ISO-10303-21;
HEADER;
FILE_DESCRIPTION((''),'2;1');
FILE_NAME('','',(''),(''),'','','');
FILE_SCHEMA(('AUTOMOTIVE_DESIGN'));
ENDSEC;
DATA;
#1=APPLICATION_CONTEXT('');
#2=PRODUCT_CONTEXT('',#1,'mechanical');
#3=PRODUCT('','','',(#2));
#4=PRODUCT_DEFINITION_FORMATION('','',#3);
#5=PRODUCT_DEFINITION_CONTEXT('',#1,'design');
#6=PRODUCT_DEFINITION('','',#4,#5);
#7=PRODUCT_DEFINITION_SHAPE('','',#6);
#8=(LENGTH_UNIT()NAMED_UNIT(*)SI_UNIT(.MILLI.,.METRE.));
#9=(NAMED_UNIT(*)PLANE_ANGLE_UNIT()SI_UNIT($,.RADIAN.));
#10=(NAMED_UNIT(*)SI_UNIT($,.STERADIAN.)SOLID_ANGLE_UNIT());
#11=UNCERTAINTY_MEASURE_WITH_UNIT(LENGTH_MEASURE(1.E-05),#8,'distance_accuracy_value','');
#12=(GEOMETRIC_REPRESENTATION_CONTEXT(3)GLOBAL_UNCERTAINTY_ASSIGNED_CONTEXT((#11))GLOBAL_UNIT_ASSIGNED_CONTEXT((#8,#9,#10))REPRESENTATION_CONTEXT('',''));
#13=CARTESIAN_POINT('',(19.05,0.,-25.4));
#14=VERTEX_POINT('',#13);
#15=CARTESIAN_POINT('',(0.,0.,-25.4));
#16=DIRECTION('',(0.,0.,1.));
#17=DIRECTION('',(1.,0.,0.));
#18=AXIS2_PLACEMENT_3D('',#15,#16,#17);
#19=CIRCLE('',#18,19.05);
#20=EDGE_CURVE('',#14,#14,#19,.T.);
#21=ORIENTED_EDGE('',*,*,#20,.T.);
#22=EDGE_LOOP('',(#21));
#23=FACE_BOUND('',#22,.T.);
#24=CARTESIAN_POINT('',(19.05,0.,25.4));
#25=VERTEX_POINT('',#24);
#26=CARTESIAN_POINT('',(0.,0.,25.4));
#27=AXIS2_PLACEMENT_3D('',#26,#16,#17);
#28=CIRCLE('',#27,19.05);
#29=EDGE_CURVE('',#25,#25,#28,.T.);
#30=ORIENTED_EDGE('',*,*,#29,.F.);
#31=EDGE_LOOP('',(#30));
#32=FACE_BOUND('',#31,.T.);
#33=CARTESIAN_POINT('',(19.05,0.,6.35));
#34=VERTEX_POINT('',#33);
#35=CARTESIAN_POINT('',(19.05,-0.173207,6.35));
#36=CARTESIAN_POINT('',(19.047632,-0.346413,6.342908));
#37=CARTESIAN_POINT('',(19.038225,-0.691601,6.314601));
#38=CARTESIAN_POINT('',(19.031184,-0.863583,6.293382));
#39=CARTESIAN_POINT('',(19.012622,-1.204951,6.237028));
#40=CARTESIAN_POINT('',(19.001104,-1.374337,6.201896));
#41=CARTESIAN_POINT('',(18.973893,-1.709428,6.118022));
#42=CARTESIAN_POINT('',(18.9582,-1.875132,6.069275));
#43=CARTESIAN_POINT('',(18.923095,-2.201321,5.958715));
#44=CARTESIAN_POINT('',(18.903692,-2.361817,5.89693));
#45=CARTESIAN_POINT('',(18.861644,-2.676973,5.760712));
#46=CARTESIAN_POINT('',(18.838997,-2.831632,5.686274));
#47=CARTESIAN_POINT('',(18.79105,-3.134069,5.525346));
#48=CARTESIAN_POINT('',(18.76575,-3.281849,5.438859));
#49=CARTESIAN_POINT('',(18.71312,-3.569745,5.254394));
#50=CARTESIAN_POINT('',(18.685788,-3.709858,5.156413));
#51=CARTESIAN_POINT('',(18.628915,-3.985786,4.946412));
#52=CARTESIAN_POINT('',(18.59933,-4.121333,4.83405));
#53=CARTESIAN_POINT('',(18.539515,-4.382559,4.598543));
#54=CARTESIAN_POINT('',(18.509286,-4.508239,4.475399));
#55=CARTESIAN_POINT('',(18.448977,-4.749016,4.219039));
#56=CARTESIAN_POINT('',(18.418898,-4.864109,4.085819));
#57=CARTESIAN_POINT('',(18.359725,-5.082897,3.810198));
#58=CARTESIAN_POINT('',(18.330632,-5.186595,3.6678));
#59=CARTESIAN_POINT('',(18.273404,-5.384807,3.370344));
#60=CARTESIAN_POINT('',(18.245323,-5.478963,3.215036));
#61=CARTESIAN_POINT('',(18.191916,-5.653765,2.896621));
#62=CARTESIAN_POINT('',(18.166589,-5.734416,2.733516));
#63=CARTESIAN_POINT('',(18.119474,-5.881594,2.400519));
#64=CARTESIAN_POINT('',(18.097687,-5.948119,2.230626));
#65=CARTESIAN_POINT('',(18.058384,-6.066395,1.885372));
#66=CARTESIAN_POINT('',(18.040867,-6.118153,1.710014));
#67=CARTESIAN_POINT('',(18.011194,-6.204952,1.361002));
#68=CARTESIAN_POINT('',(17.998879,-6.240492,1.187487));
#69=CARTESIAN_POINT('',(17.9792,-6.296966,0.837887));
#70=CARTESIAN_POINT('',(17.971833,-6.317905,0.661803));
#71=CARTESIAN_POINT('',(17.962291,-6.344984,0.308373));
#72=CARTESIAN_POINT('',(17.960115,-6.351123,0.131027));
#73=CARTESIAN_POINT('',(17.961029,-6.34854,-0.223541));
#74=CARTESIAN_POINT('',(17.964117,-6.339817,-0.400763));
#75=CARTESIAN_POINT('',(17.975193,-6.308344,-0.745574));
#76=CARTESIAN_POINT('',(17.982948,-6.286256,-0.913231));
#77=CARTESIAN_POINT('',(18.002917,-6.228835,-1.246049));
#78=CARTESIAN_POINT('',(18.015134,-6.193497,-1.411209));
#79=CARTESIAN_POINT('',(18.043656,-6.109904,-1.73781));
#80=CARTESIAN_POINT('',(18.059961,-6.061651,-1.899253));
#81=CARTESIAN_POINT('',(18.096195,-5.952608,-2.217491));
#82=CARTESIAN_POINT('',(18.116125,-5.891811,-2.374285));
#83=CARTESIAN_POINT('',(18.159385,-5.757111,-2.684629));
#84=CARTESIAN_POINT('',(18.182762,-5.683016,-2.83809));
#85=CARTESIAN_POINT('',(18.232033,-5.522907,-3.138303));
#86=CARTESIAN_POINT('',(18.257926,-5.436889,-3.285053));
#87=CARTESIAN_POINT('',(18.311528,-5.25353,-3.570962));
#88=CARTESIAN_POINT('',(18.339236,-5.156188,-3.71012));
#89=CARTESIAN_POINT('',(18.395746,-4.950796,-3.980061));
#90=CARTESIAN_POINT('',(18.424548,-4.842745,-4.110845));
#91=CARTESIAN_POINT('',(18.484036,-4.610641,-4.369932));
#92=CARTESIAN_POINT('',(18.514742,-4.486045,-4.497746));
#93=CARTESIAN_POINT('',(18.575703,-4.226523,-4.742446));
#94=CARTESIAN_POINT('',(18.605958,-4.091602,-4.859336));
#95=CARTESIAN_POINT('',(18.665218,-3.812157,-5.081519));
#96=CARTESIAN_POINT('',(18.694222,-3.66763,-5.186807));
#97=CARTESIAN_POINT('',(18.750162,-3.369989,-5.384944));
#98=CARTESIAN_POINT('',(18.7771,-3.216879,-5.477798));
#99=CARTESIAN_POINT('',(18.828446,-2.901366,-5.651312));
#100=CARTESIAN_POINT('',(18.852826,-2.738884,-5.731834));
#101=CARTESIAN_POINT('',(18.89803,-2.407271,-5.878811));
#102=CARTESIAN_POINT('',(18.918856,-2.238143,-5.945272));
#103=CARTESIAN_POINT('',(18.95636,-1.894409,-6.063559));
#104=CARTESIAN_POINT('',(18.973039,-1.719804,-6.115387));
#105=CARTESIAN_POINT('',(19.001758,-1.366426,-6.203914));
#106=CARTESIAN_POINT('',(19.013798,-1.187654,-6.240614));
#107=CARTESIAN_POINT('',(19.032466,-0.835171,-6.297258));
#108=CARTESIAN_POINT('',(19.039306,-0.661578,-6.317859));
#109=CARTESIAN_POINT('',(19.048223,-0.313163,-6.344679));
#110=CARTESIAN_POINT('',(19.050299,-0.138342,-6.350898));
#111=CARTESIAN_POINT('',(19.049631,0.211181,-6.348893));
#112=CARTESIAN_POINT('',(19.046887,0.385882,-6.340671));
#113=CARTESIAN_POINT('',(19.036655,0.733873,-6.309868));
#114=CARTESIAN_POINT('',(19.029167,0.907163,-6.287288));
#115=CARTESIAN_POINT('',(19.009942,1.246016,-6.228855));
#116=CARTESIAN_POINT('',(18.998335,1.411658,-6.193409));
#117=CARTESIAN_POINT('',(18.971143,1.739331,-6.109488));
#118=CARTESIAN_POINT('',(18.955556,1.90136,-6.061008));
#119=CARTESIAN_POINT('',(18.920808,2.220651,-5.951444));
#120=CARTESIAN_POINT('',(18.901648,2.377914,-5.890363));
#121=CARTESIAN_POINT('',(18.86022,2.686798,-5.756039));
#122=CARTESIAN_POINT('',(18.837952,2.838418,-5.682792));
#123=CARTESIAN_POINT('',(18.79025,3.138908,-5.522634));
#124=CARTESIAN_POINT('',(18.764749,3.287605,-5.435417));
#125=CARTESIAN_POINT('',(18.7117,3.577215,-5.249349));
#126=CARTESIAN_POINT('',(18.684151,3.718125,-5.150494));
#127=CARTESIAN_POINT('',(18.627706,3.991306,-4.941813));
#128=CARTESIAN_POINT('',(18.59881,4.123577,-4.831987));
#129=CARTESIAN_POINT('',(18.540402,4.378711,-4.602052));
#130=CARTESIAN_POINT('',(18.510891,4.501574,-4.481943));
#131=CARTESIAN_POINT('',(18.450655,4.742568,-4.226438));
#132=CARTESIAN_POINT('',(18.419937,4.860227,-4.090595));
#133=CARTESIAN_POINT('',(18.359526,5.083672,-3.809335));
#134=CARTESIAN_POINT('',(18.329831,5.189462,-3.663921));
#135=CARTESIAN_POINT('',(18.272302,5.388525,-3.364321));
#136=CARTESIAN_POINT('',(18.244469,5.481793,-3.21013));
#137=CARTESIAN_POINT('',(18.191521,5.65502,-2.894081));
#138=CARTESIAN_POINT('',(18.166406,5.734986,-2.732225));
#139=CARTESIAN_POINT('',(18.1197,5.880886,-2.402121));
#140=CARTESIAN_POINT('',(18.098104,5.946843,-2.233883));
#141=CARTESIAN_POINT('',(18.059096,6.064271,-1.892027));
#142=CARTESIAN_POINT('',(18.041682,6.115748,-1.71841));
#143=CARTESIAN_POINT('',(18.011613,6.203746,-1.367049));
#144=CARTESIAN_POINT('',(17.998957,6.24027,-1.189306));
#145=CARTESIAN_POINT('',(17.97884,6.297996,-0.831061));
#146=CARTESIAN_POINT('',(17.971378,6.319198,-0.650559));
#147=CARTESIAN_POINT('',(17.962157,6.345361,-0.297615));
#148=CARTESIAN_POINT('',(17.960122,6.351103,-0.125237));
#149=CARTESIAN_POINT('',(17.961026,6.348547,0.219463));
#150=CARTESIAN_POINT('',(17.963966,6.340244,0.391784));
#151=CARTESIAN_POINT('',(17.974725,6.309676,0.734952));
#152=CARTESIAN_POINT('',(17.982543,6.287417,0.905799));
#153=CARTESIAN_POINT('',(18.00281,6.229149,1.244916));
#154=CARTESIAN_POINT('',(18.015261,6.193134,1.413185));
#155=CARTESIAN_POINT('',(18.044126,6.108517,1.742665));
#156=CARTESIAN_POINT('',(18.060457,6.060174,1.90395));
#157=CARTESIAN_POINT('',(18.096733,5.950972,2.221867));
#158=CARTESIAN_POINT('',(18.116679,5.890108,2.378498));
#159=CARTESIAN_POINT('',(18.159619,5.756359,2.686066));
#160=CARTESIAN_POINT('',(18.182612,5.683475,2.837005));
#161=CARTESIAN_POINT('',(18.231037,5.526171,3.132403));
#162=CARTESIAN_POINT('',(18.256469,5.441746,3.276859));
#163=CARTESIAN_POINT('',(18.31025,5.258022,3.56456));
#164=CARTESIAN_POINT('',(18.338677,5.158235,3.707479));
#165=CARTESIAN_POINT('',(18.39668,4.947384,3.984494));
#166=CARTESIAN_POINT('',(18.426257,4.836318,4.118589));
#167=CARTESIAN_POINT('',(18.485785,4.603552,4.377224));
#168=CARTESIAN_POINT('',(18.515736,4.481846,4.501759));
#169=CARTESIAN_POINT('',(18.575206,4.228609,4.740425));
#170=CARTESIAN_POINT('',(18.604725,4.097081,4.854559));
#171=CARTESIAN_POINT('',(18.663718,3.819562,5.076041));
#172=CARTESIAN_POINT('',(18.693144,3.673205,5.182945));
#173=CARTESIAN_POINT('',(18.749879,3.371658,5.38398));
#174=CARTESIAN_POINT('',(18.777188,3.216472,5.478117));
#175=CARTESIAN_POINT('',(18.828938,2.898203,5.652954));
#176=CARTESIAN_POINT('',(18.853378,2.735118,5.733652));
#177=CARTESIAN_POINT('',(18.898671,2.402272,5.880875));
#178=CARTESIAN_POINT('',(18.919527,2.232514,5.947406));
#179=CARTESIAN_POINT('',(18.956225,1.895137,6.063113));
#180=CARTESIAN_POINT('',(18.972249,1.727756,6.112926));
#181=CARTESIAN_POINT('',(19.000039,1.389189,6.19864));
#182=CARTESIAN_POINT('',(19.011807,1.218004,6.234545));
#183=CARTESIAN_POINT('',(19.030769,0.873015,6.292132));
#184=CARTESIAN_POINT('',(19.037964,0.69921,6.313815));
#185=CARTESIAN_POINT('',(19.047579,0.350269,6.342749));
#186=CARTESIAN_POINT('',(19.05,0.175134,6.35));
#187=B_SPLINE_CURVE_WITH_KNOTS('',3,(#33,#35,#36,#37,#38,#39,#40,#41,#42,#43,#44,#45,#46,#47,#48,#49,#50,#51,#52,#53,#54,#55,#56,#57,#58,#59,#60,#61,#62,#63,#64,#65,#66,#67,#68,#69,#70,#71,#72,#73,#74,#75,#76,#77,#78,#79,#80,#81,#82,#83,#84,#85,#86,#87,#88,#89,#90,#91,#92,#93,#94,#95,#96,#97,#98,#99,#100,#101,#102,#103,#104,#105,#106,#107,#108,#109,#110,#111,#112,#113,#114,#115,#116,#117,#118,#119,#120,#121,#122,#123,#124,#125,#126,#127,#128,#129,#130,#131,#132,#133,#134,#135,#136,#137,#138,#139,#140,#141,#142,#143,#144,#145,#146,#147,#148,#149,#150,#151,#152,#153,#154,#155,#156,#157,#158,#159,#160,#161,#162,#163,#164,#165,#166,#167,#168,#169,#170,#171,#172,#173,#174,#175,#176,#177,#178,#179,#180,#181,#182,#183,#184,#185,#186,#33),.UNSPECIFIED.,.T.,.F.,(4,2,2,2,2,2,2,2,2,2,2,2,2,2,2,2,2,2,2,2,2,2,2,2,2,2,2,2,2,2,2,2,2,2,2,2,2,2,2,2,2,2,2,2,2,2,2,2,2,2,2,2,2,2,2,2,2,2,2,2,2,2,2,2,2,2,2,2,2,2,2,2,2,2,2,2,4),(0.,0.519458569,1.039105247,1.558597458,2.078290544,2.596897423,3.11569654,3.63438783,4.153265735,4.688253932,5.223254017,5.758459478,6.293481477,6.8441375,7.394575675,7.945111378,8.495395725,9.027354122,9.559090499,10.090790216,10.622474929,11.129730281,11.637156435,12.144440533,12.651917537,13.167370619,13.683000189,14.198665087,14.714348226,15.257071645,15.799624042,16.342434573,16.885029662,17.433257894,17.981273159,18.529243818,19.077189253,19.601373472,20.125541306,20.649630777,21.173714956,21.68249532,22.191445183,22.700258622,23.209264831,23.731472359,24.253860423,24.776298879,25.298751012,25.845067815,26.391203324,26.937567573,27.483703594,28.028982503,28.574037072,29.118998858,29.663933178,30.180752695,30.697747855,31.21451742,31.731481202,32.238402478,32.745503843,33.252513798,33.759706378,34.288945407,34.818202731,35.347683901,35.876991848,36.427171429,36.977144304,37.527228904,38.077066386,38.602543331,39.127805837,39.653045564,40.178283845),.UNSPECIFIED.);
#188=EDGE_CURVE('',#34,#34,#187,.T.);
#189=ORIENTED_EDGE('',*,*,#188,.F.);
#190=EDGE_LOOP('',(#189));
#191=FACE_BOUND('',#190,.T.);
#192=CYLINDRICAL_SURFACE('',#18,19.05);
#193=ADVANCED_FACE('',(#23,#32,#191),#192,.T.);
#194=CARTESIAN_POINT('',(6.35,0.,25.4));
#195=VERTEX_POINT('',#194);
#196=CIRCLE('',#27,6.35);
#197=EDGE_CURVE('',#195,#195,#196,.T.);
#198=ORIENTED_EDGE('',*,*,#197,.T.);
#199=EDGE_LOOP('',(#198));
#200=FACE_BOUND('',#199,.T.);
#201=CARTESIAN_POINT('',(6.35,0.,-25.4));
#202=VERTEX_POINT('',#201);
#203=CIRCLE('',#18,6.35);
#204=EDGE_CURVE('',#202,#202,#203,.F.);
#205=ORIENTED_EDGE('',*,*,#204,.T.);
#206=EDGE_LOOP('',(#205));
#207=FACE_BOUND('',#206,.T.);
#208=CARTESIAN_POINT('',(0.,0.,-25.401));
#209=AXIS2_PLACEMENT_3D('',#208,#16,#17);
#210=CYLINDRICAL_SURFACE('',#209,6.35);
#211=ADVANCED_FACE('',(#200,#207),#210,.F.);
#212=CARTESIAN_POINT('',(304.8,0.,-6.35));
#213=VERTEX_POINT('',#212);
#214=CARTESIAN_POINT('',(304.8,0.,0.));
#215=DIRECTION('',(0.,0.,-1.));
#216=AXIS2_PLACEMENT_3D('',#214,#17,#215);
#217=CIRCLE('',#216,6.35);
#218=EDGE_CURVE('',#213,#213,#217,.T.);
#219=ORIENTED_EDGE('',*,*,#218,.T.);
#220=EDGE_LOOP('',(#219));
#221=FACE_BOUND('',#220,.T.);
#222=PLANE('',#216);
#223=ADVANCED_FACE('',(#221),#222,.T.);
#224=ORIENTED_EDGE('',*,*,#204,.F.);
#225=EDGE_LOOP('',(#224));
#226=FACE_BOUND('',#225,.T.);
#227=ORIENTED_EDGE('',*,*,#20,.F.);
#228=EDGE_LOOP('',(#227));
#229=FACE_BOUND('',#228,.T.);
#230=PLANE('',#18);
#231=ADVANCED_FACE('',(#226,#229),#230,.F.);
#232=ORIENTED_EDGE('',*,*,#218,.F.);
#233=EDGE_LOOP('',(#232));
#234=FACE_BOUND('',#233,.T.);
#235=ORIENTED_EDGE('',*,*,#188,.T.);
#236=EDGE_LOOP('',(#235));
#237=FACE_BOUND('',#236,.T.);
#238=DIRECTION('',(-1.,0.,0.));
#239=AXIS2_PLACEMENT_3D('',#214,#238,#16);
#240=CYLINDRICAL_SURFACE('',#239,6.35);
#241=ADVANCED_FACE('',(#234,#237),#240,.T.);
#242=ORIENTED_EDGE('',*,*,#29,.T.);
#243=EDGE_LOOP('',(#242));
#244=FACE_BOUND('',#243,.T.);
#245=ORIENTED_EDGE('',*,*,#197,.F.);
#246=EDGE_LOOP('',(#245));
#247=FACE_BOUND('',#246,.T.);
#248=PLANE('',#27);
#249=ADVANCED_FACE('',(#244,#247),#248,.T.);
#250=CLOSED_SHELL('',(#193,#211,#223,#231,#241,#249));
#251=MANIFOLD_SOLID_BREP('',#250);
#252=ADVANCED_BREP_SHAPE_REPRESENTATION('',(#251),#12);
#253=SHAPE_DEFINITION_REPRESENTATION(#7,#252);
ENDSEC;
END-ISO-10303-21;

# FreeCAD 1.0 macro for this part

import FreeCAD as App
import Part
import Sketcher

V = App.Vector
Q = App.Units.Quantity

doc = App.newDocument("Part")
body = doc.addObject("PartDesign::Body", "Body")

# Sketch on YZ plane
sketch1 = body.newObject("Sketcher::SketchObject", "Sketch")
sketch1.AttachmentSupport = (doc.getObject("YZ_Plane"), [""])
sketch1.MapMode = "FlatFace"
sketch1.addGeometry(Part.Circle(V(0, 0, 0), V(0, 0, 1), 6), False)
sketch1.addConstraint([
    Sketcher.Constraint("Coincident", 0, 3, -1, 1),
    Sketcher.Constraint("Diameter", 0, Q("0.5 in")),
])
pad1 = body.newObject("PartDesign::Pad", "Pad")
pad1.Profile = sketch1
pad1.Length = Q("12 in")

# Sketch on XY plane
sketch2 = body.newObject("Sketcher::SketchObject", "Sketch001")
sketch2.AttachmentSupport = (doc.getObject("XY_Plane"), [""])
sketch2.MapMode = "FlatFace"
sketch2.addGeometry(Part.Circle(V(0, 0, 0), V(0, 0, 1), 19), False)
sketch2.addConstraint([
    Sketcher.Constraint("Coincident", 0, 3, -1, 1),
    Sketcher.Constraint("Diameter", 0, Q("1.5 in")),
])
pad2 = body.newObject("PartDesign::Pad", "Pad001")
pad2.Profile = sketch2
pad2.Type = "TwoLengths"
pad2.Length = Q("1 in")
pad2.Length2 = Q("1 in")

# Sketch on XY plane
sketch3 = body.newObject("Sketcher::SketchObject", "Sketch002")
sketch3.AttachmentSupport = (doc.getObject("XY_Plane"), [""])
sketch3.MapMode = "FlatFace"
sketch3.AttachmentOffset = App.Placement(V(0, 0, 1 * 25.4), App.Rotation())
sketch3.addGeometry(Part.Circle(V(0, 0, 0), V(0, 0, 1), 6), False)
sketch3.addConstraint([
    Sketcher.Constraint("Coincident", 0, 3, -1, 1),
    Sketcher.Constraint("Diameter", 0, Q("0.5 in")),
])
pocket1 = body.newObject("PartDesign::Pocket", "Pocket")
pocket1.Profile = sketch3
pocket1.Type = "UpToFirst"

doc.recompute()
